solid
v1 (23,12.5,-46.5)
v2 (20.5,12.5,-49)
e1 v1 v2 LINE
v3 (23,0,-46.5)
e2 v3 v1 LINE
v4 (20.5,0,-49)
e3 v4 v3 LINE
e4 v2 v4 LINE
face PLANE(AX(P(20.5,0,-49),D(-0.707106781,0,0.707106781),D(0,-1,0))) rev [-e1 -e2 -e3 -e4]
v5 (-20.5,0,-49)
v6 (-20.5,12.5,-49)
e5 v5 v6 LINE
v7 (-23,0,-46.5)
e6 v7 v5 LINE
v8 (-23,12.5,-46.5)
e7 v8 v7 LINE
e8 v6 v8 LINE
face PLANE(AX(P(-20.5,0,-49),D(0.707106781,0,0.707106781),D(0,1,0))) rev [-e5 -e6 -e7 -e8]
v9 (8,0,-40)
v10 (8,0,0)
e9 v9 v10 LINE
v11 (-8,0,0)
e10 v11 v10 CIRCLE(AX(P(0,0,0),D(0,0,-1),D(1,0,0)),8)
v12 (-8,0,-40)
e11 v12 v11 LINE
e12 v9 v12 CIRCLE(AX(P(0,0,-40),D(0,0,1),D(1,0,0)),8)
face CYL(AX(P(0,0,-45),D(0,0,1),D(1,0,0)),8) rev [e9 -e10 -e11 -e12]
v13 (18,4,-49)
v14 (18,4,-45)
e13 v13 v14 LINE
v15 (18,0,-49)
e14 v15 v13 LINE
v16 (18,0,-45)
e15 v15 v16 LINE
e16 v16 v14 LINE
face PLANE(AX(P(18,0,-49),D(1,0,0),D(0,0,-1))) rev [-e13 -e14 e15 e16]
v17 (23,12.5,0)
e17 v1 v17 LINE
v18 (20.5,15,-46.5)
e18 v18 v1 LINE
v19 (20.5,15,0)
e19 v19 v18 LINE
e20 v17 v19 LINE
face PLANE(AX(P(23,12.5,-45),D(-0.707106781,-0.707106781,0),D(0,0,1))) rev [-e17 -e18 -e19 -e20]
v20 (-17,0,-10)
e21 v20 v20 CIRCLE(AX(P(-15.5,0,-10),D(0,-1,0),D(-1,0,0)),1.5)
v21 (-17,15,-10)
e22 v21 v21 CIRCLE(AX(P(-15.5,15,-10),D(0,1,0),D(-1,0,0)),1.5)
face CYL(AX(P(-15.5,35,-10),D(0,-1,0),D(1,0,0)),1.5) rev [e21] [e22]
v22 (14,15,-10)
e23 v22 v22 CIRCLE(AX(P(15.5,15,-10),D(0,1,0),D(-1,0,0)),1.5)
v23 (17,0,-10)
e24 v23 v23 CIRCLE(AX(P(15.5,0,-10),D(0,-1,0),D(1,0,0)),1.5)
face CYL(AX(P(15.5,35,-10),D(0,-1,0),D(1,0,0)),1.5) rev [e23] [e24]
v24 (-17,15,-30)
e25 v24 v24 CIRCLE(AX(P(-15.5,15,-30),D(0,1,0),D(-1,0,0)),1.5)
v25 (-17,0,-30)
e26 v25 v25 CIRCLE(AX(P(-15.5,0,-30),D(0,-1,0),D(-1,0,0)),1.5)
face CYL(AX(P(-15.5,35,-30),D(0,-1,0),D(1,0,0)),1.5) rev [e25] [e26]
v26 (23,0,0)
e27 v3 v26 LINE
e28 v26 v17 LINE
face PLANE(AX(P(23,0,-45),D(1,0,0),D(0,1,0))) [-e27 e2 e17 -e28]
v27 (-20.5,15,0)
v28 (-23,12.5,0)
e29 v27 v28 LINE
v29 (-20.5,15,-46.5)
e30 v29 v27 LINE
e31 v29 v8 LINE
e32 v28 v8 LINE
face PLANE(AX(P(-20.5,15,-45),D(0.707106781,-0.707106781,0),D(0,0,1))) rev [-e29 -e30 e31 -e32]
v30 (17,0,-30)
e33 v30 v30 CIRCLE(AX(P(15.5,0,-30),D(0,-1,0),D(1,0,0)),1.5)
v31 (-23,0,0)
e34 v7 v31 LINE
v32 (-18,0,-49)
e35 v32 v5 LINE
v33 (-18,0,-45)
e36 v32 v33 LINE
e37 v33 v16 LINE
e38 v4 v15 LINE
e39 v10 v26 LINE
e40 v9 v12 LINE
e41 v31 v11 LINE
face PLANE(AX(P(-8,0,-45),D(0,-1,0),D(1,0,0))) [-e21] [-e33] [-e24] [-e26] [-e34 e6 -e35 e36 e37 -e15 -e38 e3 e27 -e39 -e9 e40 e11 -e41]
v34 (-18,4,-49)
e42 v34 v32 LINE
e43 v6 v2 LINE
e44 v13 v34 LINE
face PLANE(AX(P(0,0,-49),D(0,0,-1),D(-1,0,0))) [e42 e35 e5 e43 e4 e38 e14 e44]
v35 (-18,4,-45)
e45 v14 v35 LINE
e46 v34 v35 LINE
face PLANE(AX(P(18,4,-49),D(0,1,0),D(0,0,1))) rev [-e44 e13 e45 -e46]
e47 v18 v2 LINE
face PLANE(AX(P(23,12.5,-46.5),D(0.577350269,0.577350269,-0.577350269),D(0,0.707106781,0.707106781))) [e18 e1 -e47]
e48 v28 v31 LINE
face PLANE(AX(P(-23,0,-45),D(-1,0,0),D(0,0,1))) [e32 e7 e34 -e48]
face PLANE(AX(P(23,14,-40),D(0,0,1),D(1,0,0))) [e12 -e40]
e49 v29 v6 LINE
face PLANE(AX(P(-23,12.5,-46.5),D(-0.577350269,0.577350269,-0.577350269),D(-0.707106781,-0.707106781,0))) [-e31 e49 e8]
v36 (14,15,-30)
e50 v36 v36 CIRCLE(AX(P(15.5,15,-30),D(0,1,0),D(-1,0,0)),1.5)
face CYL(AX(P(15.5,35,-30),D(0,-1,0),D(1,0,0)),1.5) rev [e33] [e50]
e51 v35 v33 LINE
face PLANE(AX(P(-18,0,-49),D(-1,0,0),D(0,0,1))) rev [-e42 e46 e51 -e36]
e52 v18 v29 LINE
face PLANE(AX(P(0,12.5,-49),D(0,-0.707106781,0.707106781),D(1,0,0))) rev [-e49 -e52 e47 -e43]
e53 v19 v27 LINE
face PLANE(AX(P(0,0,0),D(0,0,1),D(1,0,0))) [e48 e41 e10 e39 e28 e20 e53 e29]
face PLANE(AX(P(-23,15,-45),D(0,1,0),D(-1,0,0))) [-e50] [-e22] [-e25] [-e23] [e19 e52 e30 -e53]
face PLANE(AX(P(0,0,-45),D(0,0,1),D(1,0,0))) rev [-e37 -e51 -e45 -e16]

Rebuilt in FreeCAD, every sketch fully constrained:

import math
import FreeCAD as App
import Part
import Sketcher

V = App.Vector
Q = App.Units.Quantity


def edges_at(feature, points):
    """Names of the edges that pass closest to the given points."""
    edges = feature.Shape.Edges
    near = lambda p: min(range(len(edges)), key=lambda i: edges[i].distToShape(Part.Vertex(*p))[0])
    return sorted({f"Edge{near(p) + 1}" for p in points})

doc = App.newDocument("Part")
body = doc.addObject("PartDesign::Body", "Body")

sketch1 = body.newObject("Sketcher::SketchObject", "Sketch")
sketch1.AttachmentSupport = (doc.getObject("XY_Plane"), [""])
sketch1.MapMode = "FlatFace"
sketch1.addGeometry(Part.LineSegment(V(-23, 0, 0), V(-8, 0, 0)), False)
sketch1.addGeometry(Part.ArcOfCircle(Part.Circle(V(0, 0, 0), V(0, 0, 1), 8), math.radians(0), math.radians(180)), False)
sketch1.addGeometry(Part.LineSegment(V(8, 0, 0), V(23, 0, 0)), False)
sketch1.addGeometry(Part.LineSegment(V(23, 0, 0), V(23, 15, 0)), False)
sketch1.addGeometry(Part.LineSegment(V(23, 15, 0), V(-23, 15, 0)), False)
sketch1.addGeometry(Part.LineSegment(V(-23, 15, 0), V(-23, 0, 0)), False)
sketch1.addConstraint(Sketcher.Constraint("Coincident", 0, 2, 1, 2))
sketch1.addConstraint(Sketcher.Constraint("Coincident", 1, 1, 2, 1))
sketch1.addConstraint(Sketcher.Constraint("Coincident", 2, 2, 3, 1))
sketch1.addConstraint(Sketcher.Constraint("Coincident", 3, 2, 4, 1))
sketch1.addConstraint(Sketcher.Constraint("Coincident", 4, 2, 5, 1))
sketch1.addConstraint(Sketcher.Constraint("Coincident", 5, 2, 0, 1))
sketch1.addConstraint(Sketcher.Constraint("Horizontal", 0))
sketch1.addConstraint(Sketcher.Constraint("Horizontal", 2))
sketch1.addConstraint(Sketcher.Constraint("Vertical", 3))
sketch1.addConstraint(Sketcher.Constraint("Horizontal", 4))
sketch1.addConstraint(Sketcher.Constraint("Vertical", 5))
sketch1.addConstraint(Sketcher.Constraint("Coincident", 1, 3, -1, 1))
sketch1.addConstraint(Sketcher.Constraint("Symmetric", 2, 2, 5, 2, -1, 1))
sketch1.addConstraint(Sketcher.Constraint("PointOnObject", 0, 2, -1))
sketch1.addConstraint(Sketcher.Constraint("Equal", 2, 3))
sketch1.addConstraint(Sketcher.Constraint("Radius", 1, Q("8 mm")))
sketch1.addConstraint(Sketcher.Constraint("DistanceX", 0, 1, 0, 2, Q("15 mm")))
pad1 = body.newObject("PartDesign::Pad", "Pad")
pad1.Profile = sketch1
pad1.Length = 45
pad1.Reversed = True

sketch2 = body.newObject("Sketcher::SketchObject", "Sketch001")
sketch2.AttachmentSupport = (doc.getObject("XZ_Plane"), [""])
sketch2.MapMode = "FlatFace"
sketch2.addGeometry(Part.LineSegment(V(-23, -40, 0), V(-23, -45, 0)), False)
sketch2.addGeometry(Part.LineSegment(V(-23, -45, 0), V(23, -45, 0)), False)
sketch2.addGeometry(Part.LineSegment(V(23, -45, 0), V(23, -40, 0)), False)
sketch2.addGeometry(Part.LineSegment(V(23, -40, 0), V(-23, -40, 0)), False)
sketch2.addConstraint(Sketcher.Constraint("Coincident", 0, 2, 1, 1))
sketch2.addConstraint(Sketcher.Constraint("Coincident", 1, 2, 2, 1))
sketch2.addConstraint(Sketcher.Constraint("Coincident", 2, 2, 3, 1))
sketch2.addConstraint(Sketcher.Constraint("Coincident", 3, 2, 0, 1))
sketch2.addConstraint(Sketcher.Constraint("Vertical", 0))
sketch2.addConstraint(Sketcher.Constraint("Horizontal", 1))
sketch2.addConstraint(Sketcher.Constraint("Vertical", 2))
sketch2.addConstraint(Sketcher.Constraint("Horizontal", 3))
sketch2.addConstraint(Sketcher.Constraint("DistanceX", 1, 1, 1, 2, Q("46 mm")))
sketch2.addConstraint(Sketcher.Constraint("DistanceY", 0, 2, 0, 1, Q("5 mm")))
sketch2.addConstraint(Sketcher.Constraint("DistanceX", 0, 2, -1, 1, Q("23 mm")))
sketch2.addConstraint(Sketcher.Constraint("DistanceY", 0, 2, -1, 1, Q("45 mm")))
pad2 = body.newObject("PartDesign::Pad", "Pad001")
pad2.Profile = sketch2
pad2.Length = 14
pad2.Reversed = True

sketch3 = body.newObject("Sketcher::SketchObject", "Sketch002")
sketch3.AttachmentSupport = (doc.getObject("XY_Plane"), [""])
sketch3.MapMode = "FlatFace"
sketch3.AttachmentOffset = App.Placement(V(0, 0, -45), App.Rotation())
sketch3.addGeometry(Part.LineSegment(V(-23, 15, 0), V(23, 15, 0)), False)
sketch3.addGeometry(Part.LineSegment(V(23, 15, 0), V(23, 0, 0)), False)
sketch3.addGeometry(Part.LineSegment(V(23, 0, 0), V(18, 0, 0)), False)
sketch3.addGeometry(Part.LineSegment(V(18, 0, 0), V(18, 4, 0)), False)
sketch3.addGeometry(Part.LineSegment(V(18, 4, 0), V(-18, 4, 0)), False)
sketch3.addGeometry(Part.LineSegment(V(-18, 4, 0), V(-18, 0, 0)), False)
sketch3.addGeometry(Part.LineSegment(V(-18, 0, 0), V(-23, 0, 0)), False)
sketch3.addGeometry(Part.LineSegment(V(-23, 0, 0), V(-23, 15, 0)), False)
sketch3.addConstraint(Sketcher.Constraint("Coincident", 0, 2, 1, 1))
sketch3.addConstraint(Sketcher.Constraint("Coincident", 1, 2, 2, 1))
sketch3.addConstraint(Sketcher.Constraint("Coincident", 2, 2, 3, 1))
sketch3.addConstraint(Sketcher.Constraint("Coincident", 3, 2, 4, 1))
sketch3.addConstraint(Sketcher.Constraint("Coincident", 4, 2, 5, 1))
sketch3.addConstraint(Sketcher.Constraint("Coincident", 5, 2, 6, 1))
sketch3.addConstraint(Sketcher.Constraint("Coincident", 6, 2, 7, 1))
sketch3.addConstraint(Sketcher.Constraint("Coincident", 7, 2, 0, 1))
sketch3.addConstraint(Sketcher.Constraint("Horizontal", 0))
sketch3.addConstraint(Sketcher.Constraint("Vertical", 1))
sketch3.addConstraint(Sketcher.Constraint("Horizontal", 2))
sketch3.addConstraint(Sketcher.Constraint("Vertical", 3))
sketch3.addConstraint(Sketcher.Constraint("Horizontal", 4))
sketch3.addConstraint(Sketcher.Constraint("Vertical", 5))
sketch3.addConstraint(Sketcher.Constraint("Horizontal", 6))
sketch3.addConstraint(Sketcher.Constraint("Vertical", 7))
sketch3.addConstraint(Sketcher.Constraint("Symmetric", 2, 2, 5, 2, -1, 1))
sketch3.addConstraint(Sketcher.Constraint("Symmetric", 1, 2, 6, 2, -2))
sketch3.addConstraint(Sketcher.Constraint("DistanceX", 0, 1, 0, 2, Q("46 mm")))
sketch3.addConstraint(Sketcher.Constraint("DistanceX", 2, 2, 2, 1, Q("5 mm")))
sketch3.addConstraint(Sketcher.Constraint("DistanceY", 1, 2, 1, 1, Q("15 mm")))
sketch3.addConstraint(Sketcher.Constraint("DistanceY", 3, 1, 3, 2, Q("4 mm")))
pad3 = body.newObject("PartDesign::Pad", "Pad002")
pad3.Profile = sketch3
pad3.Length = 4
pad3.Reversed = True
doc.recompute()

chamfer = body.newObject("PartDesign::Chamfer", "Chamfer")
chamfer.Base = (pad3, edges_at(pad3, [
    (-23, 15, -24.5),
    (23, 15, -24.5),
    (23, 7.5, -49),
    (-23, 7.5, -49),
    (0, 15, -49),
]))
chamfer.Size = 2.5

sketch4 = body.newObject("Sketcher::SketchObject", "Sketch003")
sketch4.AttachmentSupport = (doc.getObject("XZ_Plane"), [""])
sketch4.MapMode = "FlatFace"
sketch4.addGeometry(Part.Circle(V(15.5, -10, 0), V(0, 0, 1), 1.5), False)
sketch4.addGeometry(Part.Circle(V(15.5, -30, 0), V(0, 0, 1), 1.5), False)
sketch4.addGeometry(Part.Circle(V(-15.5, -30, 0), V(0, 0, 1), 1.5), False)
sketch4.addGeometry(Part.Circle(V(-15.5, -10, 0), V(0, 0, 1), 1.5), False)
sketch4.addConstraint(Sketcher.Constraint("Equal", 0, 1))
sketch4.addConstraint(Sketcher.Constraint("Equal", 1, 2))
sketch4.addConstraint(Sketcher.Constraint("Equal", 2, 3))
sketch4.addConstraint(Sketcher.Constraint("Symmetric", 1, 3, 2, 3, -2))
sketch4.addConstraint(Sketcher.Constraint("Symmetric", 0, 3, 3, 3, -2))
sketch4.addConstraint(Sketcher.Constraint("Vertical", 0, 3, 1, 3))
sketch4.addConstraint(Sketcher.Constraint("Diameter", 0, Q("3 mm")))
sketch4.addConstraint(Sketcher.Constraint("DistanceY", 0, 3, -1, 1, Q("10 mm")))
sketch4.addConstraint(Sketcher.Constraint("DistanceY", 1, 3, -1, 1, Q("30 mm")))
sketch4.addConstraint(Sketcher.Constraint("DistanceX", 2, 3, 1, 3, Q("31 mm")))
pocket1 = body.newObject("PartDesign::Pocket", "Pocket")
pocket1.Profile = sketch4
pocket1.Length = 35

doc.recompute()
